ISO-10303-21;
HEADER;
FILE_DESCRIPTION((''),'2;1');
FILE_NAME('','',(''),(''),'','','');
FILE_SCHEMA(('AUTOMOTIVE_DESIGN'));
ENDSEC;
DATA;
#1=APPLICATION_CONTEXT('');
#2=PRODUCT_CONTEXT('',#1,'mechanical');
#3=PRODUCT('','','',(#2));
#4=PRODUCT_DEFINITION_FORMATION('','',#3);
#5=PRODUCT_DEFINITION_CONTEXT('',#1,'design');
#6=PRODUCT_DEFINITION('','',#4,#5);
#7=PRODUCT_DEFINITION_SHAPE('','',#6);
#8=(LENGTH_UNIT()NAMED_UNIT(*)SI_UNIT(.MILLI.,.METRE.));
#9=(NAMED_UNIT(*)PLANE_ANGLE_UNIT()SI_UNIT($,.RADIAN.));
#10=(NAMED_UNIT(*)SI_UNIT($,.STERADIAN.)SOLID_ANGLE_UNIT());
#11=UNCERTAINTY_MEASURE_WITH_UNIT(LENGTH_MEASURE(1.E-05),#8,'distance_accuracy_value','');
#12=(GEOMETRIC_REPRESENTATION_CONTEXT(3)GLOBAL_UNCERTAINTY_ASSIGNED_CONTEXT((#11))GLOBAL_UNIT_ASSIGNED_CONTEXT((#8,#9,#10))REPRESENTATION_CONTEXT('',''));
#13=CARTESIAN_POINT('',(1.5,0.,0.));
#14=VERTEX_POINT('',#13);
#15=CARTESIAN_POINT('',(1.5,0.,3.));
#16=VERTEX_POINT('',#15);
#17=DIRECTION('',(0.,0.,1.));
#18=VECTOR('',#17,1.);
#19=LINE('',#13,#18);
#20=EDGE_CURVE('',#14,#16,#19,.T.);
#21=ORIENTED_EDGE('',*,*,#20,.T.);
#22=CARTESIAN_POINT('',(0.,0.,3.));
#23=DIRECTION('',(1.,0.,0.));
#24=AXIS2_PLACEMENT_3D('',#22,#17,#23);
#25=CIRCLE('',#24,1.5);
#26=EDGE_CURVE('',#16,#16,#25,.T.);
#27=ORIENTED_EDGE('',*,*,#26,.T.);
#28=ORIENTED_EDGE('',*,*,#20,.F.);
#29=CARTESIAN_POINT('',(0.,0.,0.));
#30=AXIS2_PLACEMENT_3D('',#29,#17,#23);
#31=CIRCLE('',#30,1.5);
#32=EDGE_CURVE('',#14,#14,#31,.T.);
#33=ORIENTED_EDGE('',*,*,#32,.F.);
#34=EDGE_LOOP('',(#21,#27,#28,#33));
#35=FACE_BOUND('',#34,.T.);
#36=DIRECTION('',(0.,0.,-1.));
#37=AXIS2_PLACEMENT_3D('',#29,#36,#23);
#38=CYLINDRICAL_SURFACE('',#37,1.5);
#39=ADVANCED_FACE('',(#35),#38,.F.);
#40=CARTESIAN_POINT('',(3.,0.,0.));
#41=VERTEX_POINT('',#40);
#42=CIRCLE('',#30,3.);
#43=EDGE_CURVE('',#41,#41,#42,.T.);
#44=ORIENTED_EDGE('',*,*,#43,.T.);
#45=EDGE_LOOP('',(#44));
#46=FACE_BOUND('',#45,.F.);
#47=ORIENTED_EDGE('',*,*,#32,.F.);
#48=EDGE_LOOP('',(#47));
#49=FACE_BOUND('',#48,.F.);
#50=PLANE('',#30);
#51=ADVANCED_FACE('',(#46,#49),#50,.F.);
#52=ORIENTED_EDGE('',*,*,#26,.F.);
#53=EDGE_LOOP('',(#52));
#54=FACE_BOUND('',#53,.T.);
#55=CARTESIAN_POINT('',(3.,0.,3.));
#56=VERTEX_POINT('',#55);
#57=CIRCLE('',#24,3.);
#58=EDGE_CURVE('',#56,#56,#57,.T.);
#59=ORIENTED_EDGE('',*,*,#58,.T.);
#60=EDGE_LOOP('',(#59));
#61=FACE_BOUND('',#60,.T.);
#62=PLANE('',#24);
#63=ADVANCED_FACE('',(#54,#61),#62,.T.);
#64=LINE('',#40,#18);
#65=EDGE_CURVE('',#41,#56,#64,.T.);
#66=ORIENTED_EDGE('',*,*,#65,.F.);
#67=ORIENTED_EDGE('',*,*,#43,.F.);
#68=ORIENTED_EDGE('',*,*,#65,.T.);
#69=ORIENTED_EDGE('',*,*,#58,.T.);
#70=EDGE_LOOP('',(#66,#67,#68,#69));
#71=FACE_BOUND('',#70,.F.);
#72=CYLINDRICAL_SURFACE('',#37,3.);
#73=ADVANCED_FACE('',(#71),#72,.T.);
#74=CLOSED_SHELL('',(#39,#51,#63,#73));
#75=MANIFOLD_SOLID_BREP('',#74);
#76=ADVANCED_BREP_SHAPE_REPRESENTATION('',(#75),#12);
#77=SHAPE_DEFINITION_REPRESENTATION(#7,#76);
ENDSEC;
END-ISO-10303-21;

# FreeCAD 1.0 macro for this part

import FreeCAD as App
import Part
import Sketcher
from FreeCAD import Vector

doc = App.newDocument("Part")
body = doc.addObject("PartDesign::Body", "Body")

sketch1 = body.newObject("Sketcher::SketchObject", "Sketch")
sketch1.AttachmentSupport = (doc.getObject("XY_Plane"), [""])
sketch1.MapMode = "FlatFace"
sketch1.addGeometry(Part.Circle(Vector(0, 0, 0), Vector(0, 0, 1), 3), False)
sketch1.addGeometry(Part.Circle(Vector(0, 0, 0), Vector(0, 0, 1), 1.5), False)
sketch1.addConstraint(Sketcher.Constraint("Coincident", 0, 3, -1, 1))
sketch1.addConstraint(Sketcher.Constraint("Coincident", 1, 3, -1, 1))
sketch1.addConstraint(Sketcher.Constraint("Diameter", 0, 6.0))
sketch1.addConstraint(Sketcher.Constraint("Diameter", 1, 3.0))
pad1 = body.newObject("PartDesign::Pad", "Pad")
pad1.Profile = sketch1
pad1.Length = 3

doc.recompute()
